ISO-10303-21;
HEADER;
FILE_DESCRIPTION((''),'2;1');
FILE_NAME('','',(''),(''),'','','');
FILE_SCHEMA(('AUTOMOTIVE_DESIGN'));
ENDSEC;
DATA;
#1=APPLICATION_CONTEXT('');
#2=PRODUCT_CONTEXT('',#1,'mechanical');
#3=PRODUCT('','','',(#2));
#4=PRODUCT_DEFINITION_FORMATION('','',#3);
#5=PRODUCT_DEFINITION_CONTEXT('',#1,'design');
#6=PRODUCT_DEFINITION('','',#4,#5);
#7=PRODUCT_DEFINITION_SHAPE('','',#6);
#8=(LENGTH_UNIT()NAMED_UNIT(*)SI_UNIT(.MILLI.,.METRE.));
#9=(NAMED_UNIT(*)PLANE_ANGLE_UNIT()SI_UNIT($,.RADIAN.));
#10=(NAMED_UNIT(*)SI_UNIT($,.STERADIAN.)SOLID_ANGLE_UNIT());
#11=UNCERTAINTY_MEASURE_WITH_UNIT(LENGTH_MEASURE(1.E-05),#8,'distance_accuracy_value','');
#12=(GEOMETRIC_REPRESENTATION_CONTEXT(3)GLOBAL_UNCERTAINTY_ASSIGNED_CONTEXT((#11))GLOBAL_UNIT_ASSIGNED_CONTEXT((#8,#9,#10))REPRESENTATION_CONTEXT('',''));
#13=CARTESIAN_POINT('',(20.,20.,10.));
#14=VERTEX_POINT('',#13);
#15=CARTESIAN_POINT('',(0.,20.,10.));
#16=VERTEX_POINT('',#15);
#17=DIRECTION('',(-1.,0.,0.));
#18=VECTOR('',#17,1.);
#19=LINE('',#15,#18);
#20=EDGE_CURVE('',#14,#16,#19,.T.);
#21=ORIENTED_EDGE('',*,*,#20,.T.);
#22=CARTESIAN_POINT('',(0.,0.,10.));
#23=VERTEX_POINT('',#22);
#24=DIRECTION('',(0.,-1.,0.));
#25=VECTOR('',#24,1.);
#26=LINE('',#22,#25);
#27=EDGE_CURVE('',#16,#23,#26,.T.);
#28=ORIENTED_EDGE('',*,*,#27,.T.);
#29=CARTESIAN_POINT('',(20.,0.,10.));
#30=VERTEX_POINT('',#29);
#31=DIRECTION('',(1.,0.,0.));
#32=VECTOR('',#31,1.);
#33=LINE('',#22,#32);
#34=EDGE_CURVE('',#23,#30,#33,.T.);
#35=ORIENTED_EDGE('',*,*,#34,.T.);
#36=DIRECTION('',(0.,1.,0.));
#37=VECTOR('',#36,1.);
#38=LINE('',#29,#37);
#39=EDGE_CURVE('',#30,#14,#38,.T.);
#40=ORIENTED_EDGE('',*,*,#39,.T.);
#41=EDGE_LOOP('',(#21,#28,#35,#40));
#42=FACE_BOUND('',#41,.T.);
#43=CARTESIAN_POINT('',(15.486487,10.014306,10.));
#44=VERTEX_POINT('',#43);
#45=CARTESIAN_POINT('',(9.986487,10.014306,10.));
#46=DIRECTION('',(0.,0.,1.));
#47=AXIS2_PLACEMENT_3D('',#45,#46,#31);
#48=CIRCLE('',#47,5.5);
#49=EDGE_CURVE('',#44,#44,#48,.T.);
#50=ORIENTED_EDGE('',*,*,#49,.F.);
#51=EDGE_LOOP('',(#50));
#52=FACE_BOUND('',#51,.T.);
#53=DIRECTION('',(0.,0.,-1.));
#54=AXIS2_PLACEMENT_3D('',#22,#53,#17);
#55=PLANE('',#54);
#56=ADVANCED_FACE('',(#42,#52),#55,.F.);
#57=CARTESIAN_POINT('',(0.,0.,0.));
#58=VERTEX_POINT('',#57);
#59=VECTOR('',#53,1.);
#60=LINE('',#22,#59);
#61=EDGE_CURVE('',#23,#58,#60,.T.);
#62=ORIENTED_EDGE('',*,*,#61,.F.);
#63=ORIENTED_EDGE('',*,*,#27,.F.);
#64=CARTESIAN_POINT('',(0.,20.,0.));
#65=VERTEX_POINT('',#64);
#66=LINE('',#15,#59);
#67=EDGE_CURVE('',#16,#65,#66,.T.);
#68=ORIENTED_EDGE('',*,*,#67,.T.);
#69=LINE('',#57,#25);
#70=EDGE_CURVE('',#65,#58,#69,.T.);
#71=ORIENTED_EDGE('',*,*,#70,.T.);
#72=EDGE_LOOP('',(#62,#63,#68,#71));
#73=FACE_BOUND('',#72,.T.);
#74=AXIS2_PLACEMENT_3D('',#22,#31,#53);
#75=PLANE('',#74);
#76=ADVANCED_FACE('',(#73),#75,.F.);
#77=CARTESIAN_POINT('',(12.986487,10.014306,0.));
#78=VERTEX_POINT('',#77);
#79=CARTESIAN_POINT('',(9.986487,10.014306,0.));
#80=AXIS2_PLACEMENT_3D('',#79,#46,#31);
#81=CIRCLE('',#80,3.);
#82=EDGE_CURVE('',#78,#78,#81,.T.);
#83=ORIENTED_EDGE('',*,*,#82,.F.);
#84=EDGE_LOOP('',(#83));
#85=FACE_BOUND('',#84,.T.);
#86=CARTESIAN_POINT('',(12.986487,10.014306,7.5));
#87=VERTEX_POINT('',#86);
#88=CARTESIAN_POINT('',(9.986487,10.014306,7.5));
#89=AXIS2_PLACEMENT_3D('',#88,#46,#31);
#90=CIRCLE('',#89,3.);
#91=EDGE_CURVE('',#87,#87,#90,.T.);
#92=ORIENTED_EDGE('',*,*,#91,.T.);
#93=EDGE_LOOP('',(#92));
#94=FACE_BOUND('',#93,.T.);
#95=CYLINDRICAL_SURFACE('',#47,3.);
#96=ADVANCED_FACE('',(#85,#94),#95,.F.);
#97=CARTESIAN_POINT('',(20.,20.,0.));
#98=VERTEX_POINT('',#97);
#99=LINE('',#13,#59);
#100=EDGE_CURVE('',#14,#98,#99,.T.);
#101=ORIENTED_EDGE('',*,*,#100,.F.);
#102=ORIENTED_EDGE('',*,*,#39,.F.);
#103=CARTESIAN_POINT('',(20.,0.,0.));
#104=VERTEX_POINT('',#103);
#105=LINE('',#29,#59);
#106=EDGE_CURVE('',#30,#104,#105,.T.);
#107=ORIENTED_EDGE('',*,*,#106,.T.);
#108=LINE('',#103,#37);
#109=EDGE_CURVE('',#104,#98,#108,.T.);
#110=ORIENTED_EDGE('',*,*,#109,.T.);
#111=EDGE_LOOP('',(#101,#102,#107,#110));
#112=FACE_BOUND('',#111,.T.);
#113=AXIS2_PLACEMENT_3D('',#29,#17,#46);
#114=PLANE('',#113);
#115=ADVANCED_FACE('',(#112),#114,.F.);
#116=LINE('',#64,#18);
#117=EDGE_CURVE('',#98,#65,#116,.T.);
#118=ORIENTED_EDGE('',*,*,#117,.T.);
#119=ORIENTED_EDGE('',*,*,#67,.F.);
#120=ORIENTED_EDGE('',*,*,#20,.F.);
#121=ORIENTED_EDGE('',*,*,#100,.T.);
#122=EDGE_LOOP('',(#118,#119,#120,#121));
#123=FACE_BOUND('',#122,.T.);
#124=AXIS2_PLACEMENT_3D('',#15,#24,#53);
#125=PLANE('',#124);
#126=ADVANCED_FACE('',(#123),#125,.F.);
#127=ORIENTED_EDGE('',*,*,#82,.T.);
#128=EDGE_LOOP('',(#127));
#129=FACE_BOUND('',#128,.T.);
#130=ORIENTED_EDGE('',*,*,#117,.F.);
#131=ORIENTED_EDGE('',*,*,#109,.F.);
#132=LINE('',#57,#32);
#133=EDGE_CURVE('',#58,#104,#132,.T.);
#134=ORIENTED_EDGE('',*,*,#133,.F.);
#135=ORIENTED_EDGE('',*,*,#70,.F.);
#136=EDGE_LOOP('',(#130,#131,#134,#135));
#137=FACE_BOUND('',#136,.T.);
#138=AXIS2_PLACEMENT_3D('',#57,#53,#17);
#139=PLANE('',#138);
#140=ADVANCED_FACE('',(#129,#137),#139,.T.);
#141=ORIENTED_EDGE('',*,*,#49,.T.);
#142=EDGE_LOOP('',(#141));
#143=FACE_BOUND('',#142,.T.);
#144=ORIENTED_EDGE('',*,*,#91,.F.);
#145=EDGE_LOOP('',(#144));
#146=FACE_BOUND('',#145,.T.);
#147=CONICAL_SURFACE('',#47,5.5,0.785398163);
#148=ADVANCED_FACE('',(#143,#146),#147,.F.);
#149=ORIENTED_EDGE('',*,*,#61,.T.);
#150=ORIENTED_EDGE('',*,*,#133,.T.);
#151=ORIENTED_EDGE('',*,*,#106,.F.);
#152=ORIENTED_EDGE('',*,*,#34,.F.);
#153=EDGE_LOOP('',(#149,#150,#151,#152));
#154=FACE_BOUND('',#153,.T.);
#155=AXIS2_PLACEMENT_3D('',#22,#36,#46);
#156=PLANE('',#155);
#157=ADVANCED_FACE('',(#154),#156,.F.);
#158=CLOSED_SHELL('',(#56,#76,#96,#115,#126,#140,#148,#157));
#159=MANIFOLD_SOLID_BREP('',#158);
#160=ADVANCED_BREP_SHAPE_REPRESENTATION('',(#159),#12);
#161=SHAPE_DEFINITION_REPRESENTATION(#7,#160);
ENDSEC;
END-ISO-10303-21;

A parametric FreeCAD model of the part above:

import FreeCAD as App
import Part
import Sketcher


def add_polygon(sketch, points):
    """Adds a closed chain of lines whose ends are joined by coincident constraints."""
    first, n = sketch.GeometryCount, len(points)
    for a, b in zip(points, points[1:] + points[:1]):
        sketch.addGeometry(Part.LineSegment(App.Vector(*a, 0), App.Vector(*b, 0)), False)
    for i in range(n):
        sketch.addConstraint(Sketcher.Constraint("Coincident", first + i, 2, first + (i + 1) % n, 1))

doc = App.newDocument("Part")
params = doc.addObject("Spreadsheet::Sheet", "Params")
for row, (alias, value) in enumerate([
    ("sketch1_width", "20 mm"),
    ("pad1_length", "10 mm"),
    ("sketch2_diameter", "6 mm"),
    ("hole_diameter", "6 mm"),
    ("hole_csink_diameter", "11 mm"),
], start=1):
    params.set(f"A{row}", alias)
    params.set(f"B{row}", "=" + value)
    params.setAlias(f"B{row}", alias)

body = doc.addObject("PartDesign::Body", "Body")

# Sketch on XY plane
sketch1 = body.newObject("Sketcher::SketchObject", "Sketch")
sketch1.AttachmentSupport = (doc.getObject("XY_Plane"), [""])
sketch1.MapMode = "FlatFace"
add_polygon(sketch1, [(0, 20), (0, 0), (20, 0), (20, 20)])  # lines 0-3
sketch1.addConstraint([
    Sketcher.Constraint("Vertical", 0),
    Sketcher.Constraint("Horizontal", 1),
    Sketcher.Constraint("Vertical", 2),
    Sketcher.Constraint("Horizontal", 3),
    Sketcher.Constraint("Coincident", 0, 2, -1, 1),
    Sketcher.Constraint("Equal", 3, 0),
    Sketcher.Constraint("DistanceX", 1, 1, 1, 2, 20.0),
])
sketch1.setExpression("Constraints[10]", "Params.sketch1_width")
pad1 = body.newObject("PartDesign::Pad", "Pad")
pad1.Profile = sketch1
pad1.setExpression("Length", "Params.pad1_length")

# Sketch on XY plane
sketch2 = body.newObject("Sketcher::SketchObject", "Sketch001")
sketch2.AttachmentSupport = (doc.getObject("XY_Plane"), [""])
sketch2.MapMode = "FlatFace"
sketch2.AttachmentOffset = App.Placement(App.Vector(0, 0, 10), App.Rotation())
sketch2.addGeometry(Part.Circle(App.Vector(9.986487, 10.014306, 0), App.Vector(0, 0, 1), 3), False)
sketch2.addConstraint([
    Sketcher.Constraint("Diameter", 0, 6.0),
    Sketcher.Constraint("DistanceX", -1, 1, 0, 3, 9.986487),
    Sketcher.Constraint("DistanceY", -1, 1, 0, 3, 10.014306),
])
sketch2.setExpression("Constraints[0]", "Params.sketch2_diameter")
doc.recompute()
hole = body.newObject("PartDesign::Hole", "Hole")
hole.Profile = sketch2
hole.ThreadType = "None"
hole.setExpression("Diameter", "Params.hole_diameter")
hole.DepthType = "ThroughAll"
hole.HoleCutType = "Countersink"
hole.setExpression("HoleCutDiameter", "Params.hole_csink_diameter")
hole.HoleCutCountersinkAngle = 90

doc.recompute()
